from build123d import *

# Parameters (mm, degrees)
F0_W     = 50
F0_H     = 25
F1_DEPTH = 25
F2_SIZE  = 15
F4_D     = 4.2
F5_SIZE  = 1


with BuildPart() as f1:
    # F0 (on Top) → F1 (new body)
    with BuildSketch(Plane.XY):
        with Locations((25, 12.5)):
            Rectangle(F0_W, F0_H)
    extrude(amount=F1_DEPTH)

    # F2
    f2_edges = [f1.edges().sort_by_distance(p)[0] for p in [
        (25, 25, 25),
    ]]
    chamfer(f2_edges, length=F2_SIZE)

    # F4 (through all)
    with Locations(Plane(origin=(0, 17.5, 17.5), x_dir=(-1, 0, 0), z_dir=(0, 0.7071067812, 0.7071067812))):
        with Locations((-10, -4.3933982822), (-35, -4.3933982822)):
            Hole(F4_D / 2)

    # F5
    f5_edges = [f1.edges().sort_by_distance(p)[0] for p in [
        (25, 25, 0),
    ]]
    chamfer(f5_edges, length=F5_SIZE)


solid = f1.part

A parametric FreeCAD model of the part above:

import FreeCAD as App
import Part
import Sketcher
from FreeCAD import Vector


def edges_at(feature, points):
    """Names of the edges that pass closest to the given points."""
    edges = feature.Shape.Edges
    near = lambda p: min(range(len(edges)), key=lambda i: edges[i].distToShape(Part.Vertex(*p))[0])
    return sorted({f"Edge{near(p) + 1}" for p in points})

doc = App.newDocument("Part")
body = doc.addObject("PartDesign::Body", "Body")

# Sketch on XY plane
sketch1 = body.newObject("Sketcher::SketchObject", "Sketch")
sketch1.AttachmentSupport = (doc.getObject("XY_Plane"), [""])
sketch1.MapMode = "FlatFace"
sketch1.addGeometry([
    Part.LineSegment(Vector(0, 25, 0), Vector(0, 0, 0)),
    Part.LineSegment(Vector(0, 0, 0), Vector(50, 0, 0)),
    Part.LineSegment(Vector(50, 0, 0), Vector(50, 25, 0)),
    Part.LineSegment(Vector(50, 25, 0), Vector(0, 25, 0)),
], False)
sketch1.addConstraint([
    Sketcher.Constraint("Coincident", 0, 2, 1, 1),
    Sketcher.Constraint("Coincident", 1, 2, 2, 1),
    Sketcher.Constraint("Coincident", 2, 2, 3, 1),
    Sketcher.Constraint("Coincident", 3, 2, 0, 1),
    Sketcher.Constraint("Vertical", 0),
    Sketcher.Constraint("Horizontal", 1),
    Sketcher.Constraint("Vertical", 2),
    Sketcher.Constraint("Horizontal", 3),
    Sketcher.Constraint("Coincident", 0, 2, -1, 1),
    Sketcher.Constraint("DistanceX", 1, 1, 1, 2, 50.0),
    Sketcher.Constraint("DistanceY", 0, 2, 0, 1, 25.0),
])
pad1 = body.newObject("PartDesign::Pad", "Pad")
pad1.Profile = sketch1
pad1.Length = 25
doc.recompute()

chamfer = body.newObject("PartDesign::Chamfer", "Chamfer")
chamfer.Base = (pad1, edges_at(pad1, [(25, 25, 25)]))
chamfer.Size = 15

# Sketch on an angled plane
sketch2 = body.newObject("Sketcher::SketchObject", "Sketch001")
sketch2.Placement = App.Placement(Vector(0, 17.5, 17.5), App.Rotation(Vector(-1, 0, 0), Vector(0, -0.707106781, 0.707106781), Vector(0, 0.707106781, 0.707106781), "ZXY"))
sketch2.addGeometry([
    Part.Circle(Vector(-10, -4.4, 0), Vector(0, 0, 1), 2.1),
    Part.Circle(Vector(-35, -4.4, 0), Vector(0, 0, 1), 2.1),
], False)
sketch2.addConstraint([
    Sketcher.Constraint("Equal", 0, 1),
    Sketcher.Constraint("Horizontal", 0, 3, 1, 3),
    Sketcher.Constraint("Diameter", 0, 4.2),
    Sketcher.Constraint("DistanceX", 0, 3, -1, 1, 10.0),
    Sketcher.Constraint("DistanceX", 1, 3, -1, 1, 35.0),
    Sketcher.Constraint("DistanceY", 0, 3, -1, 1, 4.393398),
])
doc.recompute()
hole = body.newObject("PartDesign::Hole", "Hole")
hole.Profile = sketch2
hole.ThreadType = "None"
hole.Diameter = 4.2
hole.DepthType = "ThroughAll"
doc.recompute()

chamfer2 = body.newObject("PartDesign::Chamfer", "Chamfer001")
chamfer2.Base = (hole, edges_at(hole, [(25, 25, 0)]))
chamfer2.Size = 1

doc.recompute()
